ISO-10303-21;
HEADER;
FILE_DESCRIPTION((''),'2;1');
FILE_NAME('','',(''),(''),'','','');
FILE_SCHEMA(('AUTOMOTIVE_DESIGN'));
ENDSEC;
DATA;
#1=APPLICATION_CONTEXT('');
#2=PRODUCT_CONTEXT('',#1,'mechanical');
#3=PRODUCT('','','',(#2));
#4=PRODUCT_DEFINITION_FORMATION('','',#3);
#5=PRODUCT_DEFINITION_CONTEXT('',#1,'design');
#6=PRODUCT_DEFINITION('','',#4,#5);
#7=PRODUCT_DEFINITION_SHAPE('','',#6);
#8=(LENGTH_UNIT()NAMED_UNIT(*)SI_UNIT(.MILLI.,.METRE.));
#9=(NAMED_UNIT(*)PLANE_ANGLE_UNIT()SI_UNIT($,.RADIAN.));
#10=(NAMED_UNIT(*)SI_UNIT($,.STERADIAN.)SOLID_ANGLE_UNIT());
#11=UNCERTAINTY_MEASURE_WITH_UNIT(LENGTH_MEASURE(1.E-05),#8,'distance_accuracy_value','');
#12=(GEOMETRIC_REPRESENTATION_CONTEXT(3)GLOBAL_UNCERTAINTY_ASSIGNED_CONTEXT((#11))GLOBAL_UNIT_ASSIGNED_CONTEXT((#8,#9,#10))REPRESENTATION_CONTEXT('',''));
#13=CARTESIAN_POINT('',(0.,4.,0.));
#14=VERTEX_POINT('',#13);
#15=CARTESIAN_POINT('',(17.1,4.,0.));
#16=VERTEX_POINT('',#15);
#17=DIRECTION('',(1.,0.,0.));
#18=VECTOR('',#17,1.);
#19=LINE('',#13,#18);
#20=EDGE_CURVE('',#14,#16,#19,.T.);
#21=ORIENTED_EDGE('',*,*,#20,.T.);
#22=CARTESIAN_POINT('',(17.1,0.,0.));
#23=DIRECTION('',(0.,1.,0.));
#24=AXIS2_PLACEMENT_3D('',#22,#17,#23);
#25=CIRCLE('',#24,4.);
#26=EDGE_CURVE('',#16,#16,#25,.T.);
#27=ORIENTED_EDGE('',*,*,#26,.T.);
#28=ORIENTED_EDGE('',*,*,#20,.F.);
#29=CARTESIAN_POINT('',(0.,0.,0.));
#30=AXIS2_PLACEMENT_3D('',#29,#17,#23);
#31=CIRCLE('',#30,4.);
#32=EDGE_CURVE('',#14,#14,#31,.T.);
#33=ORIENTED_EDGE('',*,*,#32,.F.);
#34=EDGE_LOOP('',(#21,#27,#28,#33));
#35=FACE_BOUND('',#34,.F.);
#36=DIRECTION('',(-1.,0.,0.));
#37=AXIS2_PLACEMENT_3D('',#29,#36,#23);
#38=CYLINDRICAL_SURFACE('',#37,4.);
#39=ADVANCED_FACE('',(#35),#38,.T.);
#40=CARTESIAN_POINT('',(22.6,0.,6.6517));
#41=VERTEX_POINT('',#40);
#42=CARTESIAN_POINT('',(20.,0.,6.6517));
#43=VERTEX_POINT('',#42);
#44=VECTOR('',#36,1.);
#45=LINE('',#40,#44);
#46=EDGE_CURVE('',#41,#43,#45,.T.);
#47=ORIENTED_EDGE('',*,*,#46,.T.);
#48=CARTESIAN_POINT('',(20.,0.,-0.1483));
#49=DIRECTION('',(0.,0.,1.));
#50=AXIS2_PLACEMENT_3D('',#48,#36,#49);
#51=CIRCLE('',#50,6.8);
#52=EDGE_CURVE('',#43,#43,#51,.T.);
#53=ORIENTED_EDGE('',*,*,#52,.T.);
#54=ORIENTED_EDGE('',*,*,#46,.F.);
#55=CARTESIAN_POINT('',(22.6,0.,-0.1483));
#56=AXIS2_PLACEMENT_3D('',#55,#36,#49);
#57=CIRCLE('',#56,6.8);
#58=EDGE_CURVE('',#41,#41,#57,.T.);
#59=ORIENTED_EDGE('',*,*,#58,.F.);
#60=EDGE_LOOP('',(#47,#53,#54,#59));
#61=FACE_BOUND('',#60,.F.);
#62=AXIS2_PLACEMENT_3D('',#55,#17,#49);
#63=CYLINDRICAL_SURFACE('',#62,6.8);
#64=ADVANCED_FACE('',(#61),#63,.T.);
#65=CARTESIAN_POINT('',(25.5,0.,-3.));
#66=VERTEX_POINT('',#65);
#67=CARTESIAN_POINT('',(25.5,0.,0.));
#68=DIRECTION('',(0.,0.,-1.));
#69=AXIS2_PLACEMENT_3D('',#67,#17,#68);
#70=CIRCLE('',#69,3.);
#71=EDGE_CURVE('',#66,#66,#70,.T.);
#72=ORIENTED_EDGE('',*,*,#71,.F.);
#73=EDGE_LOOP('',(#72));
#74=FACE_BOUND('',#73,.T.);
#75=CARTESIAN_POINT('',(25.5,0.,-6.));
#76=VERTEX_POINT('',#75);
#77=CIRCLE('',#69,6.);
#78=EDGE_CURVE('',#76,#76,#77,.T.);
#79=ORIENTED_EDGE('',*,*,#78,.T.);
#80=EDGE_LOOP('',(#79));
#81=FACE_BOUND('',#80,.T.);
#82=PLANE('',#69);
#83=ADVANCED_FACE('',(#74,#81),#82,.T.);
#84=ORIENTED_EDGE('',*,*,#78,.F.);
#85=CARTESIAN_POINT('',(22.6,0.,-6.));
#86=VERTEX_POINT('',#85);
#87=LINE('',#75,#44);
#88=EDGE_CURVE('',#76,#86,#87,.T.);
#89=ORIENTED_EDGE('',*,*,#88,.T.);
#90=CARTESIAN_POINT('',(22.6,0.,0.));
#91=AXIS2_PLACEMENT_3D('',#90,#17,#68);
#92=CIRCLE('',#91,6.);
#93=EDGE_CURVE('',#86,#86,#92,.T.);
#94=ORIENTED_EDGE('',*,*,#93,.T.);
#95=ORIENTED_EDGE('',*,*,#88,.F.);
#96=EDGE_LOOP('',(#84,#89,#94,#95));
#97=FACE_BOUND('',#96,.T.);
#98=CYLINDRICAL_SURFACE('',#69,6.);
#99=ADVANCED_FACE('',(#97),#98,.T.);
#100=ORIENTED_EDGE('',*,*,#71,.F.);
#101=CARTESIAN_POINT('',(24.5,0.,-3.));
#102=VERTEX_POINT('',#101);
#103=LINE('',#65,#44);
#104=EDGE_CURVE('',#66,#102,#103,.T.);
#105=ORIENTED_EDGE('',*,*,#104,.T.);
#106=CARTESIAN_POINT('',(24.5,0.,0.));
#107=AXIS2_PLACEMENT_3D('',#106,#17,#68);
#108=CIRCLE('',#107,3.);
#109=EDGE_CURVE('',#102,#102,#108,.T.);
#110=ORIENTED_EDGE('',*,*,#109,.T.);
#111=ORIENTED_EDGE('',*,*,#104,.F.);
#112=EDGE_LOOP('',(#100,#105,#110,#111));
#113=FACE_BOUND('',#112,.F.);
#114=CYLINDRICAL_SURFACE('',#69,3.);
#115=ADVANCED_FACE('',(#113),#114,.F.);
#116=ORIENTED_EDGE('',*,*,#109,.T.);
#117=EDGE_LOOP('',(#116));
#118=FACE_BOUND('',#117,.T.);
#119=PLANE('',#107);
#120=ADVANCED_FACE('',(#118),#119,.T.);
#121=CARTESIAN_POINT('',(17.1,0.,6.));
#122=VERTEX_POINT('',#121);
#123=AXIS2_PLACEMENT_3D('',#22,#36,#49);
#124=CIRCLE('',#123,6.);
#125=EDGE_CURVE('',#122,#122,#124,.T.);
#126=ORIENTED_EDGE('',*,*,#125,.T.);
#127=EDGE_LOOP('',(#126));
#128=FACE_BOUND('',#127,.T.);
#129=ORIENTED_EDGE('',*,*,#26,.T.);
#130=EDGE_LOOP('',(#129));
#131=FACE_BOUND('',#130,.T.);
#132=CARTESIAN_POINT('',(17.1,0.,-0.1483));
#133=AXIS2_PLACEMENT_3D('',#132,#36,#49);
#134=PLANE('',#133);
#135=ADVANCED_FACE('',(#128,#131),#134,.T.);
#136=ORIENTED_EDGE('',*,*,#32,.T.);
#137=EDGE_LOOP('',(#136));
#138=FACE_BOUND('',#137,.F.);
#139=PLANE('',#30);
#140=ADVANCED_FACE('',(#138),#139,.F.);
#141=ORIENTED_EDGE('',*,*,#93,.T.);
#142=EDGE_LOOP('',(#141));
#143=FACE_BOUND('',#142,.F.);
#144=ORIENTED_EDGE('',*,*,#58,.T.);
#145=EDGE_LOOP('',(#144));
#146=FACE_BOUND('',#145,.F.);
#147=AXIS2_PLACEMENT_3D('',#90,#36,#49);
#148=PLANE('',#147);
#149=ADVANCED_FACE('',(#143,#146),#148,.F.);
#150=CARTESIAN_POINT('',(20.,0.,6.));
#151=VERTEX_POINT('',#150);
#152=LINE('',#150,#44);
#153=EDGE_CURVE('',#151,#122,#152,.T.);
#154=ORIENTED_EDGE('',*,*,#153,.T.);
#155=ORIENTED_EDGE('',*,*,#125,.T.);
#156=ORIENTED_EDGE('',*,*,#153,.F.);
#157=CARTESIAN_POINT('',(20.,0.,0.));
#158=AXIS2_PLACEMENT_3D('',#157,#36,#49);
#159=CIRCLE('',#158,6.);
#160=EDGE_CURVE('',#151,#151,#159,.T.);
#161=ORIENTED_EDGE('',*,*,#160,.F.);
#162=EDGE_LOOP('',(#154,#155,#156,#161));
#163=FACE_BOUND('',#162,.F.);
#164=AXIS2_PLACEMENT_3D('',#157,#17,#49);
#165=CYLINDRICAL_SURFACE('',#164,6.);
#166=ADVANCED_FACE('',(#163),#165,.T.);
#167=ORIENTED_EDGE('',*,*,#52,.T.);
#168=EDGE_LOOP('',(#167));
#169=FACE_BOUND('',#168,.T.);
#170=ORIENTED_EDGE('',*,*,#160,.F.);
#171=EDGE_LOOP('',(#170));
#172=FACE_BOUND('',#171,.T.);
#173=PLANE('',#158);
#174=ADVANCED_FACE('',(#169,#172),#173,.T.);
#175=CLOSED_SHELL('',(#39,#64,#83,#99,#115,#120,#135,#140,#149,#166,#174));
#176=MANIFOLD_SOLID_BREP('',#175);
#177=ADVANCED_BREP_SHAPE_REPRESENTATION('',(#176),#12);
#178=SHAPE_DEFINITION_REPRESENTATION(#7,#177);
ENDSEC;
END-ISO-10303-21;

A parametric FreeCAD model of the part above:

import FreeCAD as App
import Part
import Sketcher
from FreeCAD import Vector
Q = App.Units.Quantity

doc = App.newDocument("Part")
body = doc.addObject("PartDesign::Body", "Body")

# Sketch on YZ plane
sketch1 = body.newObject("Sketcher::SketchObject", "Sketch")
sketch1.AttachmentSupport = (doc.getObject("YZ_Plane"), [""])
sketch1.MapMode = "FlatFace"
sketch1.addGeometry(Part.Circle(Vector(0, 0, 0), Vector(0, 0, 1), 4), False)
sketch1.addConstraint([
    Sketcher.Constraint("Coincident", 0, 3, -1, 1),
    Sketcher.Constraint("Diameter", 0, Q("8 mm")),
])
pad1 = body.newObject("PartDesign::Pad", "Pad")
pad1.Profile = sketch1
pad1.Length = 25.5

# Sketch on YZ plane
sketch2 = body.newObject("Sketcher::SketchObject", "Sketch001")
sketch2.AttachmentSupport = (doc.getObject("YZ_Plane"), [""])
sketch2.MapMode = "FlatFace"
sketch2.AttachmentOffset = App.Placement(Vector(0, 0, 25.5), App.Rotation())
sketch2.addGeometry([
    Part.Circle(Vector(0, 0, 0), Vector(0, 0, 1), 6),
    Part.Circle(Vector(0, 0, 0), Vector(0, 0, 1), 4),
], False)
sketch2.addConstraint([
    Sketcher.Constraint("Coincident", 0, 3, -1, 1),
    Sketcher.Constraint("Coincident", 1, 3, -1, 1),
    Sketcher.Constraint("Diameter", 0, Q("12 mm")),
    Sketcher.Constraint("Diameter", 1, Q("8 mm")),
])
pad2 = body.newObject("PartDesign::Pad", "Pad001")
pad2.Profile = sketch2
pad2.Length = 2.9
pad2.Reversed = True

# Sketch on YZ plane
sketch3 = body.newObject("Sketcher::SketchObject", "Sketch002")
sketch3.AttachmentSupport = (doc.getObject("YZ_Plane"), [""])
sketch3.MapMode = "FlatFace"
sketch3.AttachmentOffset = App.Placement(Vector(0, 0, 22.6), App.Rotation())
sketch3.addGeometry([
    Part.Circle(Vector(0, -0.1, 0), Vector(0, 0, 1), 6.8),
    Part.Circle(Vector(0, 0, 0), Vector(0, 0, 1), 3.6),
], False)
sketch3.addConstraint([
    Sketcher.Constraint("Coincident", 1, 3, -1, 1),
    Sketcher.Constraint("PointOnObject", 0, 3, -2),
    Sketcher.Constraint("Diameter", 0, Q("13.6 mm")),
    Sketcher.Constraint("Diameter", 1, Q("7.2842 mm")),
    Sketcher.Constraint("DistanceY", 0, 3, -1, 1, Q("0.1483 mm")),
])
pad3 = body.newObject("PartDesign::Pad", "Pad002")
pad3.Profile = sketch3
pad3.Length = 2.6
pad3.Reversed = True

# Sketch on YZ plane
sketch4 = body.newObject("Sketcher::SketchObject", "Sketch003")
sketch4.AttachmentSupport = (doc.getObject("YZ_Plane"), [""])
sketch4.MapMode = "FlatFace"
sketch4.AttachmentOffset = App.Placement(Vector(0, 0, 20), App.Rotation())
sketch4.addGeometry([
    Part.Circle(Vector(0, 0, 0), Vector(0, 0, 1), 6),
    Part.Circle(Vector(0, 0, 0), Vector(0, 0, 1), 4),
], False)
sketch4.addConstraint([
    Sketcher.Constraint("Coincident", 0, 3, -1, 1),
    Sketcher.Constraint("Coincident", 1, 3, -1, 1),
    Sketcher.Constraint("Diameter", 0, Q("12 mm")),
    Sketcher.Constraint("Diameter", 1, Q("8 mm")),
])
pad4 = body.newObject("PartDesign::Pad", "Pad003")
pad4.Profile = sketch4
pad4.Length = 2.9
pad4.Reversed = True

# Sketch on YZ plane
sketch5 = body.newObject("Sketcher::SketchObject", "Sketch004")
sketch5.AttachmentSupport = (doc.getObject("YZ_Plane"), [""])
sketch5.MapMode = "FlatFace"
sketch5.AttachmentOffset = App.Placement(Vector(0, 0, 25.5), App.Rotation())
sketch5.addGeometry(Part.Circle(Vector(0, 0, 0), Vector(0, 0, 1), 3), False)
sketch5.addConstraint([
    Sketcher.Constraint("Coincident", 0, 3, -1, 1),
    Sketcher.Constraint("Diameter", 0, Q("6 mm")),
])
pocket1 = body.newObject("PartDesign::Pocket", "Pocket")
pocket1.Profile = sketch5
pocket1.Length = 1

doc.recompute()
